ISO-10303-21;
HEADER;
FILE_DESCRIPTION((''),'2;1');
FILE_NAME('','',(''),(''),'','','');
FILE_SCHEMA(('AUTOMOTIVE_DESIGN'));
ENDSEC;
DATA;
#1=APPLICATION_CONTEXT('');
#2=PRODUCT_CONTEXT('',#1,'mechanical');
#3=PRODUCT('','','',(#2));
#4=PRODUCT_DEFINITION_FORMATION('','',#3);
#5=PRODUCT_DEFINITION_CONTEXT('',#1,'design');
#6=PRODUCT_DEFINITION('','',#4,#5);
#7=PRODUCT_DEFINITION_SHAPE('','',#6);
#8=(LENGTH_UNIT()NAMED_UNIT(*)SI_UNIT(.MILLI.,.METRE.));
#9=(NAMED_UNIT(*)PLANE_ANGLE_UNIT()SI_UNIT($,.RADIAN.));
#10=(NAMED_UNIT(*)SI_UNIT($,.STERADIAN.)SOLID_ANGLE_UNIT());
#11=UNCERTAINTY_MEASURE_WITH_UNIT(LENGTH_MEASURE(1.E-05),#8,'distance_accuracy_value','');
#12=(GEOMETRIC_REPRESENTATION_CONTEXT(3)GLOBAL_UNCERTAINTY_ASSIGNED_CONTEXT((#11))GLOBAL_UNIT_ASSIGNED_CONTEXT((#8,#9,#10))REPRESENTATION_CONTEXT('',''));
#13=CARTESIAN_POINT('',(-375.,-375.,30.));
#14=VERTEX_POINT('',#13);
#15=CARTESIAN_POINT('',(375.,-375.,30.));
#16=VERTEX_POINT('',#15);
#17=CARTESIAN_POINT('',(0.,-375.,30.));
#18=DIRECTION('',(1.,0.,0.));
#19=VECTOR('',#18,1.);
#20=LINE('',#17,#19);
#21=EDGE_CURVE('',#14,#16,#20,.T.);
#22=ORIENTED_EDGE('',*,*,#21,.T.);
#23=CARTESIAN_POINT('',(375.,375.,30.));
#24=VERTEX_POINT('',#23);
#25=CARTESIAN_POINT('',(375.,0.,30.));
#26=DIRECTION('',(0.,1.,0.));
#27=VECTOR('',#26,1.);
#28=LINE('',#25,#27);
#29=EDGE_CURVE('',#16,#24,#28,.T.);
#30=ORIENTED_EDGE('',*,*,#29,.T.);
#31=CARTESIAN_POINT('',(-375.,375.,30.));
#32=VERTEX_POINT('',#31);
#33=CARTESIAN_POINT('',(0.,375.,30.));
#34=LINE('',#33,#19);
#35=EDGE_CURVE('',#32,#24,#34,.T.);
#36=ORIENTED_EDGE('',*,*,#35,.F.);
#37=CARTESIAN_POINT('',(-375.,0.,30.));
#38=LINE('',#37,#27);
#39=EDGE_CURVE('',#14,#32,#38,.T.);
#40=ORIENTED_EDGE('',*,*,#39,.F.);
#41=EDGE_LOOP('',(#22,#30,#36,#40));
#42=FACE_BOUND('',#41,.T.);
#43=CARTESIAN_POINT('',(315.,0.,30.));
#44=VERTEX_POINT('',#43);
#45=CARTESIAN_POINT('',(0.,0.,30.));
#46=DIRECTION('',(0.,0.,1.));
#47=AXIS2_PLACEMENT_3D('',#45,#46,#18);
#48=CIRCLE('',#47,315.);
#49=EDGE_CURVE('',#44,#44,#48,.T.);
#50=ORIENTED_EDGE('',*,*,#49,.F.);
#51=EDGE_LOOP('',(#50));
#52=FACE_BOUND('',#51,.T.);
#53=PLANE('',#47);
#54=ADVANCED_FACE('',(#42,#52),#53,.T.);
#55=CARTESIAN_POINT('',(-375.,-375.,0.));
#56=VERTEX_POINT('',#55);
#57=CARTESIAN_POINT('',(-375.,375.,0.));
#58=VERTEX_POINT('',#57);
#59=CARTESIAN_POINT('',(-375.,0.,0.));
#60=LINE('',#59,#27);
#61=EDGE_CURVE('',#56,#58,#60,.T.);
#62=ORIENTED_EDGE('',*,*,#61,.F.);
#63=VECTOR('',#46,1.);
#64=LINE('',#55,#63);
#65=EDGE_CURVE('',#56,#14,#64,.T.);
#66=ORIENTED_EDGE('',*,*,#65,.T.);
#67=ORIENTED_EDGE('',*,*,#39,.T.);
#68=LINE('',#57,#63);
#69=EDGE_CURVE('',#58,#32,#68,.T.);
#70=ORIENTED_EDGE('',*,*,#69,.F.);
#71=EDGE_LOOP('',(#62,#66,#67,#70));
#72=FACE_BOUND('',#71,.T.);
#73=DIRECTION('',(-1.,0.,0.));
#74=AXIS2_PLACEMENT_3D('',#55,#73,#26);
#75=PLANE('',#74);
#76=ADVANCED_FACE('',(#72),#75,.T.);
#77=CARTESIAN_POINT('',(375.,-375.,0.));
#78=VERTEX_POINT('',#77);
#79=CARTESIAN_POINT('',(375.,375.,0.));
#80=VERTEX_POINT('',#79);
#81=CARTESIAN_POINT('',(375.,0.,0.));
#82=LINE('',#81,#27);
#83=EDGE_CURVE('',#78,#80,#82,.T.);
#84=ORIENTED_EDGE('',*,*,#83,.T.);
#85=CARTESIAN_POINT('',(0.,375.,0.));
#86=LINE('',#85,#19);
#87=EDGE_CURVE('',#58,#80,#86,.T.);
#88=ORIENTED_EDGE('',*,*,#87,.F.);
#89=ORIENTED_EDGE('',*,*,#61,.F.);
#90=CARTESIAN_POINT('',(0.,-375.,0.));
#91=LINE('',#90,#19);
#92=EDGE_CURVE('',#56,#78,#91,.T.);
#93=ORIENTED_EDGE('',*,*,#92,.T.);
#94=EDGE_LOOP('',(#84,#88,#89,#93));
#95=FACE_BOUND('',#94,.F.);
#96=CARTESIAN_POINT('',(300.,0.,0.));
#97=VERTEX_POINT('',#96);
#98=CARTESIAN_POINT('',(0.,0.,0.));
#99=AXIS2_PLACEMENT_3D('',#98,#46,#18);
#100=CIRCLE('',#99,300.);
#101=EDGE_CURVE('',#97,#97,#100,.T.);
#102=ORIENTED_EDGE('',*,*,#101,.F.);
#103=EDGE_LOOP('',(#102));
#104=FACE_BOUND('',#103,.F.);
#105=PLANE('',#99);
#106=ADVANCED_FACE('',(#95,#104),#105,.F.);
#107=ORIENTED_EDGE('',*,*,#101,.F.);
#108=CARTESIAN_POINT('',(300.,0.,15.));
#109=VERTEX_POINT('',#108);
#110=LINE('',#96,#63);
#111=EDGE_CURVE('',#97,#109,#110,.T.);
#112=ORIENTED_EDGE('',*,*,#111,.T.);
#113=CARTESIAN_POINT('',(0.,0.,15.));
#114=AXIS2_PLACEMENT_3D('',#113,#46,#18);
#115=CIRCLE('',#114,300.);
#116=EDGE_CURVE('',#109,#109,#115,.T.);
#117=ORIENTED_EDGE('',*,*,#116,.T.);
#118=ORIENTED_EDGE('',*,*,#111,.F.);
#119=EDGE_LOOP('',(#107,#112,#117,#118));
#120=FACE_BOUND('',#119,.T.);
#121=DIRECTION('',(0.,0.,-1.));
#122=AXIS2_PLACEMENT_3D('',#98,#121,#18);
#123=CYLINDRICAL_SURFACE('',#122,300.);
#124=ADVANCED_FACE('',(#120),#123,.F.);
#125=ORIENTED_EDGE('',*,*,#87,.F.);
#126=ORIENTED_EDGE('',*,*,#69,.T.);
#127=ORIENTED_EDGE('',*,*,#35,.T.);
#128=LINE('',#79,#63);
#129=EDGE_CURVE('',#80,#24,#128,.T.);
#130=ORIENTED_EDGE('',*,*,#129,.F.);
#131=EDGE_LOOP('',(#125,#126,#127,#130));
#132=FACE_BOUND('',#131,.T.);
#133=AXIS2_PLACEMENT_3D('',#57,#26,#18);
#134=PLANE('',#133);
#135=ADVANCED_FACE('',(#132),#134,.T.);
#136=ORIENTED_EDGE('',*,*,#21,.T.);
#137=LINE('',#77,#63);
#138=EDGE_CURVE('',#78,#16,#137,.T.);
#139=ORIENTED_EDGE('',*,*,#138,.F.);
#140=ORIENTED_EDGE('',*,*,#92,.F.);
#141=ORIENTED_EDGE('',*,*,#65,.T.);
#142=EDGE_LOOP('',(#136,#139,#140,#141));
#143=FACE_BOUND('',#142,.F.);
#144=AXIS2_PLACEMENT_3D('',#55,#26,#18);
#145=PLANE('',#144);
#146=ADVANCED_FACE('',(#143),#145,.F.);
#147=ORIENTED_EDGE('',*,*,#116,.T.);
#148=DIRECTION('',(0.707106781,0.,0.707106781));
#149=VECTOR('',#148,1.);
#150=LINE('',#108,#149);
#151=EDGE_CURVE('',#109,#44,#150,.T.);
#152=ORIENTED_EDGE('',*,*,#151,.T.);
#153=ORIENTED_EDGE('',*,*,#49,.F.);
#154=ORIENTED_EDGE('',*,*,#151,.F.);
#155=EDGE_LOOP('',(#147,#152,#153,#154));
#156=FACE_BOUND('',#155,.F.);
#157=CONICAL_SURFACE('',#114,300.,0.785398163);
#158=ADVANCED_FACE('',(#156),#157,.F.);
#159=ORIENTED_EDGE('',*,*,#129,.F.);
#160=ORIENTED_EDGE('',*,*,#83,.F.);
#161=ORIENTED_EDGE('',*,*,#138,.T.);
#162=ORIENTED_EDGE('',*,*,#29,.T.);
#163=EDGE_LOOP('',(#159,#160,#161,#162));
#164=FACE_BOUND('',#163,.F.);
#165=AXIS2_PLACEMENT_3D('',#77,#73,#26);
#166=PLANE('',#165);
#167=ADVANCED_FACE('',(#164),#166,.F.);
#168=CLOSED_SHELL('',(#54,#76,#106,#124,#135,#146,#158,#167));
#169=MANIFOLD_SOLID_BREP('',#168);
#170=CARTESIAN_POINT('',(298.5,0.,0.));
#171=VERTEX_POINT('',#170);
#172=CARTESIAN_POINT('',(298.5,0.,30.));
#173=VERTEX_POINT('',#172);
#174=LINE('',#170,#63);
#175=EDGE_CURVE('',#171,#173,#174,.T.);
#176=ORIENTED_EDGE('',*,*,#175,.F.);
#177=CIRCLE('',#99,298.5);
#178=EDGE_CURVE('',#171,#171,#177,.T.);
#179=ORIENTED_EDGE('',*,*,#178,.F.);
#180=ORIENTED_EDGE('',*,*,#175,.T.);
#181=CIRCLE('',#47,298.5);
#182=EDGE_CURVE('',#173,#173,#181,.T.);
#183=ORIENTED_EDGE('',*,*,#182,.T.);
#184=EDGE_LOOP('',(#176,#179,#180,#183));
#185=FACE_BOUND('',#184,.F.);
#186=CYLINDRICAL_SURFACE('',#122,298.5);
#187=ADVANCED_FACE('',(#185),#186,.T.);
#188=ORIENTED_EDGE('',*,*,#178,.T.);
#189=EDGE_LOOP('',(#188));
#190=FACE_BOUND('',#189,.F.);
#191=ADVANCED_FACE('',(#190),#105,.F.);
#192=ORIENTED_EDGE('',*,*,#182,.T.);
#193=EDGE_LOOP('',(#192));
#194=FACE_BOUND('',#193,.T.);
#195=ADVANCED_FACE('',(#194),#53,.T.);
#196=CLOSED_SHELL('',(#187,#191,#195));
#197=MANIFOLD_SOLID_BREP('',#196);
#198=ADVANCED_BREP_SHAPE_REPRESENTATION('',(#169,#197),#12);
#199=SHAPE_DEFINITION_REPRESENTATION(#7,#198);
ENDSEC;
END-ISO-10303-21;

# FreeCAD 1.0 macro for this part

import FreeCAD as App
import Part
import Sketcher

V = App.Vector


def edges_at(feature, points):
    """Names of the edges that pass closest to the given points."""
    edges = feature.Shape.Edges
    near = lambda p: min(range(len(edges)), key=lambda i: edges[i].distToShape(Part.Vertex(*p))[0])
    return sorted({f"Edge{near(p) + 1}" for p in points})

doc = App.newDocument("Part")
body = doc.addObject("PartDesign::Body", "Body")
body.AllowCompound = True

sketch1 = body.newObject("Sketcher::SketchObject", "Sketch")
sketch1.AttachmentSupport = (doc.getObject("XY_Plane"), [""])
sketch1.MapMode = "FlatFace"
sketch1.addGeometry([
    Part.LineSegment(V(-375, 375, 0), V(-375, -375, 0)),
    Part.LineSegment(V(-375, -375, 0), V(375, -375, 0)),
    Part.LineSegment(V(375, -375, 0), V(375, 375, 0)),
    Part.LineSegment(V(375, 375, 0), V(-375, 375, 0)),
    Part.Circle(V(0, 0, 0), V(0, 0, 1), 300),
    Part.Circle(V(0, 0, 0), V(0, 0, 1), 298),
], False)
sketch1.addConstraint([
    Sketcher.Constraint("Coincident", 0, 2, 1, 1),
    Sketcher.Constraint("Coincident", 1, 2, 2, 1),
    Sketcher.Constraint("Coincident", 2, 2, 3, 1),
    Sketcher.Constraint("Coincident", 3, 2, 0, 1),
    Sketcher.Constraint("Vertical", 0),
    Sketcher.Constraint("Horizontal", 1),
    Sketcher.Constraint("Vertical", 2),
    Sketcher.Constraint("Horizontal", 3),
    Sketcher.Constraint("Coincident", 4, 3, -1, 1),
    Sketcher.Constraint("Coincident", 5, 3, -1, 1),
    Sketcher.Constraint("Symmetric", 0, 2, 2, 2, -1, 1),
    Sketcher.Constraint("Equal", 3, 0),
    Sketcher.Constraint("Diameter", 4, 600.0),
    Sketcher.Constraint("Diameter", 5, 597.0),
    Sketcher.Constraint("DistanceX", 1, 1, 1, 2, 750.0),
])
pad1 = body.newObject("PartDesign::Pad", "Pad")
pad1.Profile = sketch1
pad1.Length = 30
doc.recompute()

chamfer = body.newObject("PartDesign::Chamfer", "Chamfer")
chamfer.Base = (pad1, edges_at(pad1, [(-300, 0, 30)]))
chamfer.Size = 15

doc.recompute()
